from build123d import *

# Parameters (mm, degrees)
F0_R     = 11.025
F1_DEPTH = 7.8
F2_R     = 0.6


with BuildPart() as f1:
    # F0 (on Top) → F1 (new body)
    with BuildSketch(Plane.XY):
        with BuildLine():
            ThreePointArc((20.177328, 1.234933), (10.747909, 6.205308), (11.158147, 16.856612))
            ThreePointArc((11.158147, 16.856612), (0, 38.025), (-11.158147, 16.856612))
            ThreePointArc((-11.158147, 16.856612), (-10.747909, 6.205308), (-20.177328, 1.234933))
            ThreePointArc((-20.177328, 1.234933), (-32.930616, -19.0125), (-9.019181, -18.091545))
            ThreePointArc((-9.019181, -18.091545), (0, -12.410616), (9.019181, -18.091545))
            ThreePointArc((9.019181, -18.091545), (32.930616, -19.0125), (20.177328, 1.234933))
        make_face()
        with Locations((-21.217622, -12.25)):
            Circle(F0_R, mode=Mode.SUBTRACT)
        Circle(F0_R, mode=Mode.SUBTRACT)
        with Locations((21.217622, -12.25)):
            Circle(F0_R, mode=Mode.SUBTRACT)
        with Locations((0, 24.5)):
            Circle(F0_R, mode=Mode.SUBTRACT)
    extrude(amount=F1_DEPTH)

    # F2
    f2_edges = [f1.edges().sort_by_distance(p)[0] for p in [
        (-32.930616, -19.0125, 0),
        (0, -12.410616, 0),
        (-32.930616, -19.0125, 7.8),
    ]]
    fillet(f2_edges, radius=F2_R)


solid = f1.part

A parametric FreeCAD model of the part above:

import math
import FreeCAD as App
import Part
import Sketcher


def edges_at(feature, points):
    """Names of the edges that pass closest to the given points."""
    edges = feature.Shape.Edges
    near = lambda p: min(range(len(edges)), key=lambda i: edges[i].distToShape(Part.Vertex(*p))[0])
    return sorted({f"Edge{near(p) + 1}" for p in points})

doc = App.newDocument("Part")
body = doc.addObject("PartDesign::Body", "Body")

sketch1 = body.newObject("Sketcher::SketchObject", "Sketch")
sketch1.AttachmentSupport = (doc.getObject("XY_Plane"), [""])
sketch1.MapMode = "FlatFace"
sketch1.addGeometry([
    Part.ArcOfCircle(Part.Circle(App.Vector(19.408163, 11.205308, 0), App.Vector(0, 0, 1), 10), math.radians(145.588653), math.radians(274.41135)),
    Part.ArcOfCircle(Part.Circle(App.Vector(0, 24.5, 0), App.Vector(0, 0, 1), 13.525), math.radians(-34.411344), math.radians(214.411344)),
    Part.ArcOfCircle(Part.Circle(App.Vector(-19.408163, 11.205308, 0), App.Vector(0, 0, 1), 10), math.radians(-94.41135), math.radians(34.411347)),
    Part.ArcOfCircle(Part.Circle(App.Vector(-21.217623, -12.25, 0), App.Vector(0, 0, 1), 13.525), math.radians(85.588657), math.radians(334.411342)),
    Part.ArcOfCircle(Part.Circle(App.Vector(0, -22.410616, 0), App.Vector(0, 0, 1), 10), math.radians(25.588651), math.radians(154.411349)),
    Part.ArcOfCircle(Part.Circle(App.Vector(21.217623, -12.25, 0), App.Vector(0, 0, 1), 13.525), math.radians(-154.411342), math.radians(94.411343)),
    Part.Circle(App.Vector(-21.217622, -12.25, 0), App.Vector(0, 0, 1), 11.025),
    Part.Circle(App.Vector(21.217622, -12.25, 0), App.Vector(0, 0, 1), 11.025),
    Part.Circle(App.Vector(0, 0, 0), App.Vector(0, 0, 1), 11.025),
    Part.Circle(App.Vector(0, 24.5, 0), App.Vector(0, 0, 1), 11.025),
], False)
sketch1.addConstraint([
    Sketcher.Constraint("Tangent", 0, 1, 1, 1),
    Sketcher.Constraint("Tangent", 1, 2, 2, 2),
    Sketcher.Constraint("Tangent", 2, 1, 3, 1),
    Sketcher.Constraint("Tangent", 3, 2, 4, 2),
    Sketcher.Constraint("Tangent", 4, 1, 5, 1),
    Sketcher.Constraint("Tangent", 5, 2, 0, 2),
    Sketcher.Constraint("Coincident", 8, 3, -1, 1),
    Sketcher.Constraint("Coincident", 6, 3, 3, 3),
    Sketcher.Constraint("Coincident", 7, 3, 5, 3),
    Sketcher.Constraint("Coincident", 9, 3, 1, 3),
    Sketcher.Constraint("Equal", 0, 2),
    Sketcher.Constraint("Equal", 1, 3),
    Sketcher.Constraint("Equal", 2, 4),
    Sketcher.Constraint("Equal", 3, 5),
    Sketcher.Constraint("Equal", 6, 7),
    Sketcher.Constraint("Equal", 7, 8),
    Sketcher.Constraint("Equal", 8, 9),
    Sketcher.Constraint("Symmetric", 0, 3, 2, 3, -2),
    Sketcher.Constraint("PointOnObject", 4, 3, -2),
    Sketcher.Constraint("Radius", 0, 10.0),
    Sketcher.Constraint("Diameter", 6, 22.05),
    Sketcher.Constraint("Radius", 1, 13.525),
    Sketcher.Constraint("DistanceY", -1, 1, 1, 3, 24.5),
    Sketcher.Constraint("DistanceY", 3, 3, -1, 1, 12.25),
    Sketcher.Constraint("DistanceY", -1, 1, 0, 3, 11.205308),
])
pad1 = body.newObject("PartDesign::Pad", "Pad")
pad1.Profile = sketch1
pad1.Length = 7.8
doc.recompute()

fillet = body.newObject("PartDesign::Fillet", "Fillet")
fillet.Base = (pad1, edges_at(pad1, [(-32.931, -19.012, 0), (0, -12.411, 0), (-32.931, -19.012, 7.8)]))
fillet.Radius = 0.6

doc.recompute()
